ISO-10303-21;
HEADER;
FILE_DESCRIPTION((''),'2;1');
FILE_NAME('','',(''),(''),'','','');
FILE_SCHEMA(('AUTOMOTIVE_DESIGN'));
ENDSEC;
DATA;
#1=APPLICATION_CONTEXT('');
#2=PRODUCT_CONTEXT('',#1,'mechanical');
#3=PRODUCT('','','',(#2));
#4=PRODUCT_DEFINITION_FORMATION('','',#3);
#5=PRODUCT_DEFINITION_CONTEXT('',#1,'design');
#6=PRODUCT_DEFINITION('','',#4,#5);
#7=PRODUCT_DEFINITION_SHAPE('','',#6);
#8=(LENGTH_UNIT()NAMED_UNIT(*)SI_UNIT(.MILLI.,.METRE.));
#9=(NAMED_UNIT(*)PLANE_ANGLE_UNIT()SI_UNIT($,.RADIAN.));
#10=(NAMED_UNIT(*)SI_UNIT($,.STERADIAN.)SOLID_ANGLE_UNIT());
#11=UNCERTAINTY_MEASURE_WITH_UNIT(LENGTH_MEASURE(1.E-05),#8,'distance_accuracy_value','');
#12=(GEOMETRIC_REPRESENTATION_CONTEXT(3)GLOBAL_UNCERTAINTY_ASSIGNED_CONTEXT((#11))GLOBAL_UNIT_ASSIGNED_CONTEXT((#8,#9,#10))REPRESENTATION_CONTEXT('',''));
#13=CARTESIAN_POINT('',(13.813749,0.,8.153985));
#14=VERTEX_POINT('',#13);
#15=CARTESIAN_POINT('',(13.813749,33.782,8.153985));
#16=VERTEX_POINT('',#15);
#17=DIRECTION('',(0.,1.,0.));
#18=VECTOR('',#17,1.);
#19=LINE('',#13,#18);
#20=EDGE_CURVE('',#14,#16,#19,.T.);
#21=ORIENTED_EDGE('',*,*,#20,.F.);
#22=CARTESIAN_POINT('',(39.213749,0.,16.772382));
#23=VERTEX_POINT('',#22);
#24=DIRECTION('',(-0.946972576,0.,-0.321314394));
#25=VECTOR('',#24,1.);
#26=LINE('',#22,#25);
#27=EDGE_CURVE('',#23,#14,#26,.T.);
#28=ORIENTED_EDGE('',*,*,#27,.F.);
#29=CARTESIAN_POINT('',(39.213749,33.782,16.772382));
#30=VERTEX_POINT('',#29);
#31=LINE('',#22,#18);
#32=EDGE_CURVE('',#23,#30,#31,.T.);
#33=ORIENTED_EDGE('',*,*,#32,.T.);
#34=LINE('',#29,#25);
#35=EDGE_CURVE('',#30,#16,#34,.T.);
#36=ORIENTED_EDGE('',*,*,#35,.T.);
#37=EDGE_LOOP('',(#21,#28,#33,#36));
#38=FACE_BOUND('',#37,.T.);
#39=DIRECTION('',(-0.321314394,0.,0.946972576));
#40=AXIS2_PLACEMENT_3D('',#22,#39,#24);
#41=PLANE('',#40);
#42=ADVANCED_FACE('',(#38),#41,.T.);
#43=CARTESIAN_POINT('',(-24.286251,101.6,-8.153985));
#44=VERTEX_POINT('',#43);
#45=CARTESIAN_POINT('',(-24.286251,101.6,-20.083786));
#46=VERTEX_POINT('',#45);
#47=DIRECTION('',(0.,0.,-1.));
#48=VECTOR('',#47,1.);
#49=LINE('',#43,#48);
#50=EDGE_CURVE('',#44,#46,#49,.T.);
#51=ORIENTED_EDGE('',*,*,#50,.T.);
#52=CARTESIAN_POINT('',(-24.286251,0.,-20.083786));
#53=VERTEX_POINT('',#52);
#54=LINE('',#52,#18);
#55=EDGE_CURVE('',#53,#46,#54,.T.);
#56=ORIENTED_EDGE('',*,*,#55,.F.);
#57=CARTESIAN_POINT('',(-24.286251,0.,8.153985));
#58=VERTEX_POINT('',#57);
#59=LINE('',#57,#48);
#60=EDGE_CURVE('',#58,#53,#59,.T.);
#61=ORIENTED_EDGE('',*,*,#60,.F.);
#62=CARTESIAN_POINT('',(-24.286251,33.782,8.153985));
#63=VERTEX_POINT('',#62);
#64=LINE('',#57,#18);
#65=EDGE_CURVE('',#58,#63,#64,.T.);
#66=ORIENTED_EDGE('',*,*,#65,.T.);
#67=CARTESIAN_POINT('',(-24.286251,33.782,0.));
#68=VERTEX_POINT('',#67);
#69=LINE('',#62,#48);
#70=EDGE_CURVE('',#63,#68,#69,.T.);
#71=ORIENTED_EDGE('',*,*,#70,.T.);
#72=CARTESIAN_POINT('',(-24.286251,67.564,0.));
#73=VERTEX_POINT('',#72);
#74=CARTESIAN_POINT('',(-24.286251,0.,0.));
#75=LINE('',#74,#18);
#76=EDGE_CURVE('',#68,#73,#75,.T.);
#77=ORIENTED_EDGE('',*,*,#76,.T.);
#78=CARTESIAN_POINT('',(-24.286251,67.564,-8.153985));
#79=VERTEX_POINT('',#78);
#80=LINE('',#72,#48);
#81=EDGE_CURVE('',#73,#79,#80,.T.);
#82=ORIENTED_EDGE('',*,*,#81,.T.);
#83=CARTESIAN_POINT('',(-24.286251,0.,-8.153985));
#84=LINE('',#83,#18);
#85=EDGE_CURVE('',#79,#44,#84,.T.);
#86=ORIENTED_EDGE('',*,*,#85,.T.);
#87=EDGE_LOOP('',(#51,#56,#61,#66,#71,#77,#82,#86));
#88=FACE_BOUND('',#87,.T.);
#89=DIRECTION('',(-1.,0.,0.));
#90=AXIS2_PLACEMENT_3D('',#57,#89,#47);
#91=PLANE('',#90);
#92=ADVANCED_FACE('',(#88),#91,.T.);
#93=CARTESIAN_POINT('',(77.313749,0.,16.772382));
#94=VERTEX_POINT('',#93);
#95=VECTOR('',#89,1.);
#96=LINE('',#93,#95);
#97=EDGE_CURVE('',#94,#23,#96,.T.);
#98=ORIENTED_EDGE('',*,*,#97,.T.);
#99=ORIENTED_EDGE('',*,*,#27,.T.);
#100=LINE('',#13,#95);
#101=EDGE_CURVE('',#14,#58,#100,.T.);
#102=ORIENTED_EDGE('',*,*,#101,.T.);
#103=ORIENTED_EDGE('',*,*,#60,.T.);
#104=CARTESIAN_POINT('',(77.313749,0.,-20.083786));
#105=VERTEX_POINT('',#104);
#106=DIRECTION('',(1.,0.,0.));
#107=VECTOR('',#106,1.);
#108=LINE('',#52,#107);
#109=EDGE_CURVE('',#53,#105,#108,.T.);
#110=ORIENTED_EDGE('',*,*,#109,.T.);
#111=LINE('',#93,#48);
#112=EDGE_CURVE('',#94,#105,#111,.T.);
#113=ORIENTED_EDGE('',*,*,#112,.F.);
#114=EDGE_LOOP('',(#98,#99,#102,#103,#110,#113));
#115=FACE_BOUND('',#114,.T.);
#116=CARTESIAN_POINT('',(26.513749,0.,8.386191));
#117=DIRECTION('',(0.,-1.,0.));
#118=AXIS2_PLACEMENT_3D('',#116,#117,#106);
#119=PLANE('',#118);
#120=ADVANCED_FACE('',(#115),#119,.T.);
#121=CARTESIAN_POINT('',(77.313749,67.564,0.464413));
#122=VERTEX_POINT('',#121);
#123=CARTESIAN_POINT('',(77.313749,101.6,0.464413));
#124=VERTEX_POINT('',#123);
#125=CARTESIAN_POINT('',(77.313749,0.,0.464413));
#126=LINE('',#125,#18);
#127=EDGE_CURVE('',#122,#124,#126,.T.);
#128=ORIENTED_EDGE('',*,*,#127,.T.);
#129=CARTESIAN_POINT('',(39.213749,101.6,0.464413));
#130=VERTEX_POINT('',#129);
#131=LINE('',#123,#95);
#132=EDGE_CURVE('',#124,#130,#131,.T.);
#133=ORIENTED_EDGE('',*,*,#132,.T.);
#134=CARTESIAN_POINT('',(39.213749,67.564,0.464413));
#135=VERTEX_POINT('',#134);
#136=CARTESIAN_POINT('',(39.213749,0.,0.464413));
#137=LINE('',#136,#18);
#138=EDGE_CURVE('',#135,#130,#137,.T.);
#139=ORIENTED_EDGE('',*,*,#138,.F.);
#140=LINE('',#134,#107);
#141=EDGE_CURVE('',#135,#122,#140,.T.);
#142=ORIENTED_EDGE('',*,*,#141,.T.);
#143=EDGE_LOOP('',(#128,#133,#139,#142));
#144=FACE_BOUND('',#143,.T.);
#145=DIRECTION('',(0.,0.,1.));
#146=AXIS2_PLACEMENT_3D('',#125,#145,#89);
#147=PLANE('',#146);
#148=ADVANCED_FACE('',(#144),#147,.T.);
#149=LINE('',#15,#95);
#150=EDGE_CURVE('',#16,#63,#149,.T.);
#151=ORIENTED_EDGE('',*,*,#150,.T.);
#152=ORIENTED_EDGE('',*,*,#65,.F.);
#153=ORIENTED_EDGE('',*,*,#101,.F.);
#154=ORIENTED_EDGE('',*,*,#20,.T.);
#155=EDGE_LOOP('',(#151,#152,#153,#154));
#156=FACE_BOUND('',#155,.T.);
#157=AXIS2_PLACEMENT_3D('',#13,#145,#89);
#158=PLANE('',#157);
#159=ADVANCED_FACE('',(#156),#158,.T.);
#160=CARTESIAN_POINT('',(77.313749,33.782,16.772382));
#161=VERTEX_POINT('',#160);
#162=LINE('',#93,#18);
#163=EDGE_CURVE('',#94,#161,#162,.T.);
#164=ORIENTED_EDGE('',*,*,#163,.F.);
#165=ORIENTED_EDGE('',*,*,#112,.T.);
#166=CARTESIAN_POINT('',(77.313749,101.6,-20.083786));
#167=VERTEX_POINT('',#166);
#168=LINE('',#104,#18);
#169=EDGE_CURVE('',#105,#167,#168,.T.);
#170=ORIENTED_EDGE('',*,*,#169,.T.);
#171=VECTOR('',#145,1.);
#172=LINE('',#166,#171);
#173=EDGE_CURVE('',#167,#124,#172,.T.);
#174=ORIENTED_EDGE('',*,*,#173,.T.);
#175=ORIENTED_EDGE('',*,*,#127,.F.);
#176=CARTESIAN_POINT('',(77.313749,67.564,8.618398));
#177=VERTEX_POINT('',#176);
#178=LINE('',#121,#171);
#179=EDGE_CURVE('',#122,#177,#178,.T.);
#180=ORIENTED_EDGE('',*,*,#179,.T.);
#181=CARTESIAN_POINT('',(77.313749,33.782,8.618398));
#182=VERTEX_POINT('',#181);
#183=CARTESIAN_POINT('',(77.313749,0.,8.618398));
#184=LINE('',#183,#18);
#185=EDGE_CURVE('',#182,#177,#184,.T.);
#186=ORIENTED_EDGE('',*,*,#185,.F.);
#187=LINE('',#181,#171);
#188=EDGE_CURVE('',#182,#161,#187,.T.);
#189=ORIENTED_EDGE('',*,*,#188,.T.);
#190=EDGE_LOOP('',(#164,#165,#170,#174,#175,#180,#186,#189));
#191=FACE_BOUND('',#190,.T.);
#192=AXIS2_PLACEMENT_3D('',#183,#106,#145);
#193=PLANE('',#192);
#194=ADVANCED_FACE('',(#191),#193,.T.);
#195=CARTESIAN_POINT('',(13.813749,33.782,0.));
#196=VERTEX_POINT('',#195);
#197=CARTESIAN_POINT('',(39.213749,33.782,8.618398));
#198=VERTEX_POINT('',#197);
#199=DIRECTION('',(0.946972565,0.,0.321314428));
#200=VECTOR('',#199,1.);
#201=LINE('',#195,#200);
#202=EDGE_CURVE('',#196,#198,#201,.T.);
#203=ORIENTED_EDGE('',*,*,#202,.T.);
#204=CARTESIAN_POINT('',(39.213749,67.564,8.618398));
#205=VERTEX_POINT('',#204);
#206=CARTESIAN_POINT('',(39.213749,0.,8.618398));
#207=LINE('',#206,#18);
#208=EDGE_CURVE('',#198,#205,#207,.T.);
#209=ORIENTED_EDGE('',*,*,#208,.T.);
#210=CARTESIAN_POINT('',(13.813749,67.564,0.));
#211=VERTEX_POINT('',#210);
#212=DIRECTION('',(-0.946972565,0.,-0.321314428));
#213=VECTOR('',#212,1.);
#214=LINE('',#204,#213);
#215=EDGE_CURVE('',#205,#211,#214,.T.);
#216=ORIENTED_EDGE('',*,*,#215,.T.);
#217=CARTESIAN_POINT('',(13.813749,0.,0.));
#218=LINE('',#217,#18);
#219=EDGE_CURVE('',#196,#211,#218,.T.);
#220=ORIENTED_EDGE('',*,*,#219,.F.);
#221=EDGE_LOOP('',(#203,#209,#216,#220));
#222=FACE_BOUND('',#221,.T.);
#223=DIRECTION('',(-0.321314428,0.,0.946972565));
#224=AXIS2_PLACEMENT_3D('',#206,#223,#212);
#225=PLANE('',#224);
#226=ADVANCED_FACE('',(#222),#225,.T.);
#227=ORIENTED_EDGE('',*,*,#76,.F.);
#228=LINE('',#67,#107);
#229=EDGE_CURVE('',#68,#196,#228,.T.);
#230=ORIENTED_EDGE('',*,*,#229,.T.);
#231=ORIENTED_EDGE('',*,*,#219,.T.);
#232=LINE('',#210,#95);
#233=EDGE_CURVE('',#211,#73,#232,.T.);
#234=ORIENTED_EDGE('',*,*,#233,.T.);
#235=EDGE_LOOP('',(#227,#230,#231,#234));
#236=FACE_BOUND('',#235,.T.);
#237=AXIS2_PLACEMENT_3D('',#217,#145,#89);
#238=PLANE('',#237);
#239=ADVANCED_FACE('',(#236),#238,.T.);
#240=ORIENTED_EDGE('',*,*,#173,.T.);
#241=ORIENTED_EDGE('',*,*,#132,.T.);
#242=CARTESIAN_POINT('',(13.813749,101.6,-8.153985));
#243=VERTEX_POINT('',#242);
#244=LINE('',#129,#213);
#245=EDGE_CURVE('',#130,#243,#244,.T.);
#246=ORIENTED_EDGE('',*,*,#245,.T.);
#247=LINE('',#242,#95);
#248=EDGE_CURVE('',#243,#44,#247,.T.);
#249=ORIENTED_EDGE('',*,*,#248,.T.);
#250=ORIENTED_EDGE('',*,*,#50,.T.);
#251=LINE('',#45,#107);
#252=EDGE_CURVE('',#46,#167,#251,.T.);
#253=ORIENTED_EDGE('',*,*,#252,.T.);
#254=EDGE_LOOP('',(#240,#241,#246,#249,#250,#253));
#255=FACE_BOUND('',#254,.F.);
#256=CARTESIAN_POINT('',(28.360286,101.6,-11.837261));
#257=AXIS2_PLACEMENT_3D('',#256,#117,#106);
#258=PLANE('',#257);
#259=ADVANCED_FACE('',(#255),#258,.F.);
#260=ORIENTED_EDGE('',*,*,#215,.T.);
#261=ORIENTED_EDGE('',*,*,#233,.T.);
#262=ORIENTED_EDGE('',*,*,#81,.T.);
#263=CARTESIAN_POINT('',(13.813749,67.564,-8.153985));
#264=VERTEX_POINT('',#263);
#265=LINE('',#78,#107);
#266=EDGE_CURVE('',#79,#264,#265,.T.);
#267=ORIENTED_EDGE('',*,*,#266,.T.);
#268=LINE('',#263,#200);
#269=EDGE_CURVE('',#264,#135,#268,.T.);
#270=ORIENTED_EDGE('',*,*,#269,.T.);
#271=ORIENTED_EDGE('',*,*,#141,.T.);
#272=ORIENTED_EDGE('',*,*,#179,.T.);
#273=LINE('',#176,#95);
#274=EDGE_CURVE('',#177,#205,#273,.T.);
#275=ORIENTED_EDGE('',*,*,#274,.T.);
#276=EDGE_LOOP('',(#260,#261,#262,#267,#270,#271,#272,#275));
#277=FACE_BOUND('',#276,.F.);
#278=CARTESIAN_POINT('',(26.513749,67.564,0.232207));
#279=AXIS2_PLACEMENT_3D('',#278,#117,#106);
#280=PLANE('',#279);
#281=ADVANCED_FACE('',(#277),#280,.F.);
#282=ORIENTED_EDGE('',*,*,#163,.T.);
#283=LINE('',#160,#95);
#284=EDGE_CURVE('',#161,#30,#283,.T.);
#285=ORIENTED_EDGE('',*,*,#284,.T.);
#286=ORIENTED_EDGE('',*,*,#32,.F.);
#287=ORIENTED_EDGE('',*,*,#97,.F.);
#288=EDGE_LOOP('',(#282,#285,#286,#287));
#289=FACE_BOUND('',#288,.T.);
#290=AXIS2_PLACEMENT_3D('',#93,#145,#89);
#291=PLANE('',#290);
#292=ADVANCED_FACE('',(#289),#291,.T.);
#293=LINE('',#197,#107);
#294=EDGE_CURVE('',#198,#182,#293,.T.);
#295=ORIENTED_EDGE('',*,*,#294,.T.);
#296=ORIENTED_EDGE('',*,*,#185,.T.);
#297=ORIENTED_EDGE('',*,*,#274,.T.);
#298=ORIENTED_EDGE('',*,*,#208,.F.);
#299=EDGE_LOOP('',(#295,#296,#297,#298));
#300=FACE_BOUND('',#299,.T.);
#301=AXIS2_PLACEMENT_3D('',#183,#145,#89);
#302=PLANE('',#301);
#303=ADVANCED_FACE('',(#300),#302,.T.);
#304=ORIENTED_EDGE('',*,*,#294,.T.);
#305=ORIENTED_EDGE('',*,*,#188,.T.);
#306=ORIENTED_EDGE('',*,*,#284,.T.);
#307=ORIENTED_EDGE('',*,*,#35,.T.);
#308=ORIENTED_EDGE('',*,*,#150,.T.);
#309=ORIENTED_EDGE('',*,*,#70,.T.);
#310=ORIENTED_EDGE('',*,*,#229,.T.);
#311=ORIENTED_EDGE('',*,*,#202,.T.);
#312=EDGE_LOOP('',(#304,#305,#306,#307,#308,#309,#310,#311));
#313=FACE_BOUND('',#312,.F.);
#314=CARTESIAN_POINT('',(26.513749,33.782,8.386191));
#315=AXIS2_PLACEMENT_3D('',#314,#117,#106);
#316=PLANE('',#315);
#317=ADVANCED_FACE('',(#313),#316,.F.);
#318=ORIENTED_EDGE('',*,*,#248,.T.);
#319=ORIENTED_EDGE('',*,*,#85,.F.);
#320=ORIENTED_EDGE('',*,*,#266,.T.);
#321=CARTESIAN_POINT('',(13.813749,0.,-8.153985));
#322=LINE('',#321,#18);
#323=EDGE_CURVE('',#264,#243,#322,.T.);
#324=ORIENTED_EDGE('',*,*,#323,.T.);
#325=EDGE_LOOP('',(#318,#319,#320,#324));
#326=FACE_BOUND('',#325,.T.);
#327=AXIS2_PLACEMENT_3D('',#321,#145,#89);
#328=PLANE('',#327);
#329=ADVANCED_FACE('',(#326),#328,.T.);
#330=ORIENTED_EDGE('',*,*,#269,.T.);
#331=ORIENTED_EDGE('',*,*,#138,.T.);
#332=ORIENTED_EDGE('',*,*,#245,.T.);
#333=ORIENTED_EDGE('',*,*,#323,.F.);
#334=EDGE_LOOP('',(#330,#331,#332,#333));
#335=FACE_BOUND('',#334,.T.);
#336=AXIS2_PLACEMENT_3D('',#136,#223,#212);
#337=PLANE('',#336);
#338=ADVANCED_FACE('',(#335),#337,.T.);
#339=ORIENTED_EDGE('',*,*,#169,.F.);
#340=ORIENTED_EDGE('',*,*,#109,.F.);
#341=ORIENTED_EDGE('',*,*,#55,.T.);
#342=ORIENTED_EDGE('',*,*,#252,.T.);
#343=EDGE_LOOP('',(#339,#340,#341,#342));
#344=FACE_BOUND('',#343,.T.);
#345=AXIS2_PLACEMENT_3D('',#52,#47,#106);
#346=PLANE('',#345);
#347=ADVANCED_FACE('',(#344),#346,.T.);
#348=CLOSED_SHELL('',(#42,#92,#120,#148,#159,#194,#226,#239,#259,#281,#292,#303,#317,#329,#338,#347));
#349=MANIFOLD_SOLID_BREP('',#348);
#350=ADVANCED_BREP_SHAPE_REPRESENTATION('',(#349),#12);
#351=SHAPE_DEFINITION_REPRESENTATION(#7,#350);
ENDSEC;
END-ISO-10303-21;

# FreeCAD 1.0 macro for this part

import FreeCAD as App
import Part
import Sketcher
from FreeCAD import Vector
Q = App.Units.Quantity


def add_polygon(sketch, points):
    """Adds a closed chain of lines whose ends are joined by coincident constraints."""
    first, n = sketch.GeometryCount, len(points)
    for a, b in zip(points, points[1:] + points[:1]):
        sketch.addGeometry(Part.LineSegment(App.Vector(*a, 0), App.Vector(*b, 0)), False)
    for i in range(n):
        sketch.addConstraint(Sketcher.Constraint("Coincident", first + i, 2, first + (i + 1) % n, 1))

doc = App.newDocument("Part")
body = doc.addObject("PartDesign::Body", "Body")

# Sketch on XZ plane
sketch1 = doc.addObject("Sketcher::SketchObject", "Sketch")
body.addObject(sketch1)
sketch1.AttachmentSupport = (doc.XZ_Plane, [""])
sketch1.MapMode = "FlatFace"
add_polygon(sketch1, [(-24.286251, -20.083786), (77.313749, -20.083786), (77.313749, 0.464413), (39.213749, 0.464413), (13.813749, -8.153985), (-24.286251, -8.153985)])  # lines 0-5
sketch1.addConstraint([
    Sketcher.Constraint("Horizontal", 0),
    Sketcher.Constraint("Vertical", 1),
    Sketcher.Constraint("Horizontal", 2),
    Sketcher.Constraint("Horizontal", 4),
    Sketcher.Constraint("Vertical", 5),
    Sketcher.Constraint("Equal", 2, 4),
    Sketcher.Constraint("DistanceX", 0, 1, 0, 2, Q("4 in")),
    Sketcher.Constraint("DistanceX", 2, 2, 2, 1, Q("1.5 in")),
    Sketcher.Constraint("DistanceY", 1, 1, 1, 2, 20.548199),
    Sketcher.Constraint("DistanceY", 5, 2, 5, 1, 11.929801),
    Sketcher.Constraint("DistanceX", -1, 1, 0, 2, 77.313749),
    Sketcher.Constraint("DistanceY", 0, 2, -1, 1, 20.083786),
])
pad1 = doc.addObject("PartDesign::Pad", "Pad")
body.addObject(pad1)
pad1.Profile = sketch1
pad1.Length = Q("4 in")
pad1.Reversed = True

# Sketch on XZ plane
sketch2 = doc.addObject("Sketcher::SketchObject", "Sketch001")
body.addObject(sketch2)
sketch2.AttachmentSupport = (doc.XZ_Plane, [""])
sketch2.MapMode = "FlatFace"
add_polygon(sketch2, [(39.213749, 0.464413), (77.313749, 0.464413), (77.313749, 8.618398), (39.213749, 8.618398), (13.813749, 0), (-24.286251, 0), (-24.286251, -8.153985), (13.813749, -8.153985)])  # lines 0-7
sketch2.addConstraint([
    Sketcher.Constraint("Horizontal", 0),
    Sketcher.Constraint("Vertical", 1),
    Sketcher.Constraint("Horizontal", 2),
    Sketcher.Constraint("Horizontal", 4),
    Sketcher.Constraint("Vertical", 5),
    Sketcher.Constraint("Horizontal", 6),
    Sketcher.Constraint("PointOnObject", 3, 2, -1),
    Sketcher.Constraint("Parallel", 3, 7),
    Sketcher.Constraint("Vertical", 3, 2, 6, 2),
    Sketcher.Constraint("Vertical", 2, 2, 7, 2),
    Sketcher.Constraint("Equal", 2, 4),
    Sketcher.Constraint("DistanceX", 0, 1, 0, 2, Q("1.5 in")),
    Sketcher.Constraint("DistanceX", 3, 2, 2, 2, Q("1 in")),
    Sketcher.Constraint("DistanceY", 5, 2, 0, 2, 8.618398),
    Sketcher.Constraint("DistanceY", 1, 1, 1, 2, 8.153985),
    Sketcher.Constraint("DistanceX", -1, 1, 0, 2, 77.313749),
])
pad2 = doc.addObject("PartDesign::Pad", "Pad001")
body.addObject(pad2)
pad2.Profile = sketch2
pad2.Length = Q("2.66 in")
pad2.Reversed = True

# Sketch on XZ plane
sketch3 = doc.addObject("Sketcher::SketchObject", "Sketch002")
body.addObject(sketch3)
sketch3.AttachmentSupport = (doc.XZ_Plane, [""])
sketch3.MapMode = "FlatFace"
add_polygon(sketch3, [(39.213749, 8.618398), (77.313749, 8.618398), (77.313749, 16.772382), (39.213749, 16.772382), (13.813749, 8.153985), (-24.286251, 8.153985), (-24.286251, 0), (13.813749, 0)])  # lines 0-7
sketch3.addConstraint([
    Sketcher.Constraint("Horizontal", 0),
    Sketcher.Constraint("Vertical", 1),
    Sketcher.Constraint("Horizontal", 2),
    Sketcher.Constraint("Horizontal", 4),
    Sketcher.Constraint("Vertical", 5),
    Sketcher.Constraint("Horizontal", 6),
    Sketcher.Constraint("PointOnObject", 5, 2, -1),
    Sketcher.Constraint("Parallel", 3, 7),
    Sketcher.Constraint("Vertical", 3, 2, 6, 2),
    Sketcher.Constraint("Vertical", 2, 2, 7, 2),
    Sketcher.Constraint("Equal", 2, 4),
    Sketcher.Constraint("DistanceX", 0, 1, 0, 2, Q("1.5 in")),
    Sketcher.Constraint("DistanceX", 3, 2, 2, 2, Q("1 in")),
    Sketcher.Constraint("Distance", 3, 26.822318),
    Sketcher.Constraint("DistanceY", 1, 1, 1, 2, 8.153984),
    Sketcher.Constraint("DistanceX", -1, 1, 0, 2, 77.313749),
])
pad3 = doc.addObject("PartDesign::Pad", "Pad002")
body.addObject(pad3)
pad3.Profile = sketch3
pad3.Length = Q("1.33 in")
pad3.Reversed = True

doc.recompute()
